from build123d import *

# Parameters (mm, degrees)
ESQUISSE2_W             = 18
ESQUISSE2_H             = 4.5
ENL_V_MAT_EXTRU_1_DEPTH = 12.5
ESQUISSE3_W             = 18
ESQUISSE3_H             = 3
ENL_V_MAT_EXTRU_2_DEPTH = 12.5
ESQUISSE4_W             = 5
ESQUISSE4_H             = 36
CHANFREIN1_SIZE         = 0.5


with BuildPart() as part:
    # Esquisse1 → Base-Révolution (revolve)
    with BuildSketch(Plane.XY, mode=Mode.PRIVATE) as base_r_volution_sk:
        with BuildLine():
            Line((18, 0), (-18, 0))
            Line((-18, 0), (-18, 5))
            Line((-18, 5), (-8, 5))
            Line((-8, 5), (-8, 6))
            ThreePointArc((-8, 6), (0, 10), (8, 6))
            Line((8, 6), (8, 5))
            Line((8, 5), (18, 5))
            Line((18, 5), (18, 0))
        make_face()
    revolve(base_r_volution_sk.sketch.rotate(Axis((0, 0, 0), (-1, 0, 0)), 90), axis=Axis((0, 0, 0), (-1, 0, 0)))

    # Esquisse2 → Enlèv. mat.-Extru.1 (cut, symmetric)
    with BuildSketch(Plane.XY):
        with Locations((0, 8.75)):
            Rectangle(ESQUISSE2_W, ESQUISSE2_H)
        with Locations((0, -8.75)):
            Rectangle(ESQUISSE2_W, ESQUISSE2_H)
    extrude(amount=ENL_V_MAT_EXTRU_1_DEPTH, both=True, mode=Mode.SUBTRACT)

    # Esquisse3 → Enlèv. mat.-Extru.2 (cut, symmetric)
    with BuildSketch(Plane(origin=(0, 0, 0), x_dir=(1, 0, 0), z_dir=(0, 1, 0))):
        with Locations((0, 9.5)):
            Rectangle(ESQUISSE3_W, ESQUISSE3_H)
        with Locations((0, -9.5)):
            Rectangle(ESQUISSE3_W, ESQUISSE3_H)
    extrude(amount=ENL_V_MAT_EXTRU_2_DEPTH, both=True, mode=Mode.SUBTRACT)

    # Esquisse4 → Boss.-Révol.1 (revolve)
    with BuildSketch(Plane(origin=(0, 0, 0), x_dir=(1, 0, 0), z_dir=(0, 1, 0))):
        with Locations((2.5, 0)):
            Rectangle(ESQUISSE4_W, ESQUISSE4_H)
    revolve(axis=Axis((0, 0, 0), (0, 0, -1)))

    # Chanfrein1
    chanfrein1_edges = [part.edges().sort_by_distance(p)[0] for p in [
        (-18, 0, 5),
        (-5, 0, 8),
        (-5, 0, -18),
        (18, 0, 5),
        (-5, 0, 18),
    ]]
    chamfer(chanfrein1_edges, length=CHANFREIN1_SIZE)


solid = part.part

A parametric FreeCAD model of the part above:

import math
import FreeCAD as App
import Part
import Sketcher


def edges_at(feature, points):
    """Names of the edges that pass closest to the given points."""
    edges = feature.Shape.Edges
    near = lambda p: min(range(len(edges)), key=lambda i: edges[i].distToShape(Part.Vertex(*p))[0])
    return sorted({f"Edge{near(p) + 1}" for p in points})

doc = App.newDocument("Part")
body = doc.addObject("PartDesign::Body", "Body")

# Sketch on XY plane
sketch1 = body.newObject("Sketcher::SketchObject", "Sketch")
sketch1.AttachmentSupport = (doc.getObject("XY_Plane"), [""])
sketch1.MapMode = "FlatFace"
sketch1.addGeometry([
    Part.LineSegment(App.Vector(-18, 0, 0), App.Vector(18, 0, 0)),  # 0
    Part.LineSegment(App.Vector(18, 0, 0), App.Vector(18, 5, 0)),  # 1
    Part.LineSegment(App.Vector(18, 5, 0), App.Vector(8, 5, 0)),  # 2
    Part.LineSegment(App.Vector(8, 5, 0), App.Vector(8, 6, 0)),  # 3
    Part.ArcOfCircle(Part.Circle(App.Vector(0, 0, 0), App.Vector(0, 0, 1), 10), math.radians(36.869898), math.radians(143.130102)),  # 4
    Part.LineSegment(App.Vector(-8, 6, 0), App.Vector(-8, 5, 0)),  # 5
    Part.LineSegment(App.Vector(-8, 5, 0), App.Vector(-18, 5, 0)),  # 6
    Part.LineSegment(App.Vector(-18, 5, 0), App.Vector(-18, 0, 0)),  # 7
], False)
sketch1.addConstraint([
    Sketcher.Constraint("Coincident", 0, 2, 1, 1),
    Sketcher.Constraint("Coincident", 1, 2, 2, 1),
    Sketcher.Constraint("Coincident", 2, 2, 3, 1),
    Sketcher.Constraint("Coincident", 3, 2, 4, 1),
    Sketcher.Constraint("Coincident", 4, 2, 5, 1),
    Sketcher.Constraint("Coincident", 5, 2, 6, 1),
    Sketcher.Constraint("Coincident", 6, 2, 7, 1),
    Sketcher.Constraint("Coincident", 7, 2, 0, 1),
    Sketcher.Constraint("Horizontal", 0),
    Sketcher.Constraint("Vertical", 1),
    Sketcher.Constraint("Horizontal", 2),
    Sketcher.Constraint("Vertical", 3),
    Sketcher.Constraint("Vertical", 5),
    Sketcher.Constraint("Horizontal", 6),
    Sketcher.Constraint("Vertical", 7),
    Sketcher.Constraint("Coincident", 4, 3, -1, 1),
    Sketcher.Constraint("Symmetric", 0, 2, 7, 2, -1, 1),
    Sketcher.Constraint("Symmetric", 2, 2, 5, 2, -2),
    Sketcher.Constraint("Radius", 4, 10.0),
    Sketcher.Constraint("DistanceX", 0, 1, 0, 2, 36.0),
    Sketcher.Constraint("DistanceX", 2, 2, 2, 1, 10.0),
    Sketcher.Constraint("DistanceY", 1, 1, 1, 2, 5.0),
])
revolution = body.newObject("PartDesign::Revolution", "Revolution")
revolution.Profile = sketch1
revolution.ReferenceAxis = (sketch1, ["H_Axis"])
revolution.Angle = 360

# Sketch on XY plane
sketch2 = body.newObject("Sketcher::SketchObject", "Sketch001")
sketch2.AttachmentSupport = (doc.getObject("XY_Plane"), [""])
sketch2.MapMode = "FlatFace"
sketch2.addGeometry([
    Part.LineSegment(App.Vector(-9, 11, 0), App.Vector(-9, 6.5, 0)),  # 0
    Part.LineSegment(App.Vector(-9, 6.5, 0), App.Vector(9, 6.5, 0)),  # 1
    Part.LineSegment(App.Vector(9, 6.5, 0), App.Vector(9, 11, 0)),  # 2
    Part.LineSegment(App.Vector(9, 11, 0), App.Vector(-9, 11, 0)),  # 3
    Part.LineSegment(App.Vector(-9, -6.5, 0), App.Vector(-9, -11, 0)),  # 4
    Part.LineSegment(App.Vector(-9, -11, 0), App.Vector(9, -11, 0)),  # 5
    Part.LineSegment(App.Vector(9, -11, 0), App.Vector(9, -6.5, 0)),  # 6
    Part.LineSegment(App.Vector(9, -6.5, 0), App.Vector(-9, -6.5, 0)),  # 7
], False)
sketch2.addConstraint([
    Sketcher.Constraint("Coincident", 0, 2, 1, 1),
    Sketcher.Constraint("Coincident", 1, 2, 2, 1),
    Sketcher.Constraint("Coincident", 2, 2, 3, 1),
    Sketcher.Constraint("Coincident", 3, 2, 0, 1),
    Sketcher.Constraint("Coincident", 4, 2, 5, 1),
    Sketcher.Constraint("Coincident", 5, 2, 6, 1),
    Sketcher.Constraint("Coincident", 6, 2, 7, 1),
    Sketcher.Constraint("Coincident", 7, 2, 4, 1),
    Sketcher.Constraint("Vertical", 0),
    Sketcher.Constraint("Horizontal", 1),
    Sketcher.Constraint("Vertical", 2),
    Sketcher.Constraint("Horizontal", 3),
    Sketcher.Constraint("Vertical", 4),
    Sketcher.Constraint("Horizontal", 5),
    Sketcher.Constraint("Vertical", 6),
    Sketcher.Constraint("Horizontal", 7),
    Sketcher.Constraint("Symmetric", 2, 2, 4, 2, -1, 1),
    Sketcher.Constraint("Symmetric", 0, 2, 6, 2, -1, 1),
    Sketcher.Constraint("Vertical", 3, 2, 4, 2),
    Sketcher.Constraint("DistanceX", 1, 1, 1, 2, 18.0),
    Sketcher.Constraint("DistanceY", 0, 2, 0, 1, 4.5),
    Sketcher.Constraint("DistanceY", -1, 1, 2, 2, 11.0),
])
pocket1 = body.newObject("PartDesign::Pocket", "Pocket")
pocket1.Profile = sketch2
pocket1.Length = 25
pocket1.Midplane = True

# Sketch on XZ plane
sketch3 = body.newObject("Sketcher::SketchObject", "Sketch002")
sketch3.AttachmentSupport = (doc.getObject("XZ_Plane"), [""])
sketch3.MapMode = "FlatFace"
sketch3.addGeometry([
    Part.LineSegment(App.Vector(-9, -11, 0), App.Vector(-9, -8, 0)),  # 0
    Part.LineSegment(App.Vector(-9, -8, 0), App.Vector(9, -8, 0)),  # 1
    Part.LineSegment(App.Vector(9, -8, 0), App.Vector(9, -11, 0)),  # 2
    Part.LineSegment(App.Vector(9, -11, 0), App.Vector(-9, -11, 0)),  # 3
    Part.LineSegment(App.Vector(-9, 8, 0), App.Vector(-9, 11, 0)),  # 4
    Part.LineSegment(App.Vector(-9, 11, 0), App.Vector(9, 11, 0)),  # 5
    Part.LineSegment(App.Vector(9, 11, 0), App.Vector(9, 8, 0)),  # 6
    Part.LineSegment(App.Vector(9, 8, 0), App.Vector(-9, 8, 0)),  # 7
], False)
sketch3.addConstraint([
    Sketcher.Constraint("Coincident", 0, 2, 1, 1),
    Sketcher.Constraint("Coincident", 1, 2, 2, 1),
    Sketcher.Constraint("Coincident", 2, 2, 3, 1),
    Sketcher.Constraint("Coincident", 3, 2, 0, 1),
    Sketcher.Constraint("Coincident", 4, 2, 5, 1),
    Sketcher.Constraint("Coincident", 5, 2, 6, 1),
    Sketcher.Constraint("Coincident", 6, 2, 7, 1),
    Sketcher.Constraint("Coincident", 7, 2, 4, 1),
    Sketcher.Constraint("Vertical", 0),
    Sketcher.Constraint("Horizontal", 1),
    Sketcher.Constraint("Vertical", 2),
    Sketcher.Constraint("Horizontal", 3),
    Sketcher.Constraint("Vertical", 4),
    Sketcher.Constraint("Horizontal", 5),
    Sketcher.Constraint("Vertical", 6),
    Sketcher.Constraint("Horizontal", 7),
    Sketcher.Constraint("Symmetric", 2, 2, 4, 2, -1, 1),
    Sketcher.Constraint("Symmetric", 0, 2, 6, 2, -1, 1),
    Sketcher.Constraint("Vertical", 3, 2, 4, 2),
    Sketcher.Constraint("DistanceX", 1, 1, 1, 2, 18.0),
    Sketcher.Constraint("DistanceY", 0, 1, 0, 2, 3.0),
    Sketcher.Constraint("DistanceY", 0, 2, -1, 1, 8.0),
])
pocket2 = body.newObject("PartDesign::Pocket", "Pocket001")
pocket2.Profile = sketch3
pocket2.Length = 25
pocket2.Midplane = True

# Sketch on XZ plane
sketch4 = body.newObject("Sketcher::SketchObject", "Sketch003")
sketch4.AttachmentSupport = (doc.getObject("XZ_Plane"), [""])
sketch4.MapMode = "FlatFace"
sketch4.addGeometry([
    Part.LineSegment(App.Vector(0, -18, 0), App.Vector(0, 18, 0)),
    Part.LineSegment(App.Vector(0, 18, 0), App.Vector(5, 18, 0)),
    Part.LineSegment(App.Vector(5, 18, 0), App.Vector(5, -18, 0)),
    Part.LineSegment(App.Vector(5, -18, 0), App.Vector(0, -18, 0)),
], False)
sketch4.addConstraint([
    Sketcher.Constraint("Coincident", 0, 2, 1, 1),
    Sketcher.Constraint("Coincident", 1, 2, 2, 1),
    Sketcher.Constraint("Coincident", 2, 2, 3, 1),
    Sketcher.Constraint("Coincident", 3, 2, 0, 1),
    Sketcher.Constraint("Vertical", 0),
    Sketcher.Constraint("Horizontal", 1),
    Sketcher.Constraint("Vertical", 2),
    Sketcher.Constraint("Horizontal", 3),
    Sketcher.Constraint("Symmetric", 0, 2, 3, 2, -1, 1),
    Sketcher.Constraint("DistanceX", 1, 1, 1, 2, 5.0),
    Sketcher.Constraint("DistanceY", 0, 1, 0, 2, 36.0),
])
revolution2 = body.newObject("PartDesign::Revolution", "Revolution001")
revolution2.Profile = sketch4
revolution2.ReferenceAxis = (sketch4, ["V_Axis"])
revolution2.Angle = 360
doc.recompute()

chamfer = body.newObject("PartDesign::Chamfer", "Chamfer")
chamfer.Base = (revolution2, edges_at(revolution2, [
    (-18, 0, 5),
    (-5, 0, 8),
    (-5, 0, -18),
    (18, 0, 5),
    (-5, 0, 18),
]))
chamfer.Size = 0.5

doc.recompute()
